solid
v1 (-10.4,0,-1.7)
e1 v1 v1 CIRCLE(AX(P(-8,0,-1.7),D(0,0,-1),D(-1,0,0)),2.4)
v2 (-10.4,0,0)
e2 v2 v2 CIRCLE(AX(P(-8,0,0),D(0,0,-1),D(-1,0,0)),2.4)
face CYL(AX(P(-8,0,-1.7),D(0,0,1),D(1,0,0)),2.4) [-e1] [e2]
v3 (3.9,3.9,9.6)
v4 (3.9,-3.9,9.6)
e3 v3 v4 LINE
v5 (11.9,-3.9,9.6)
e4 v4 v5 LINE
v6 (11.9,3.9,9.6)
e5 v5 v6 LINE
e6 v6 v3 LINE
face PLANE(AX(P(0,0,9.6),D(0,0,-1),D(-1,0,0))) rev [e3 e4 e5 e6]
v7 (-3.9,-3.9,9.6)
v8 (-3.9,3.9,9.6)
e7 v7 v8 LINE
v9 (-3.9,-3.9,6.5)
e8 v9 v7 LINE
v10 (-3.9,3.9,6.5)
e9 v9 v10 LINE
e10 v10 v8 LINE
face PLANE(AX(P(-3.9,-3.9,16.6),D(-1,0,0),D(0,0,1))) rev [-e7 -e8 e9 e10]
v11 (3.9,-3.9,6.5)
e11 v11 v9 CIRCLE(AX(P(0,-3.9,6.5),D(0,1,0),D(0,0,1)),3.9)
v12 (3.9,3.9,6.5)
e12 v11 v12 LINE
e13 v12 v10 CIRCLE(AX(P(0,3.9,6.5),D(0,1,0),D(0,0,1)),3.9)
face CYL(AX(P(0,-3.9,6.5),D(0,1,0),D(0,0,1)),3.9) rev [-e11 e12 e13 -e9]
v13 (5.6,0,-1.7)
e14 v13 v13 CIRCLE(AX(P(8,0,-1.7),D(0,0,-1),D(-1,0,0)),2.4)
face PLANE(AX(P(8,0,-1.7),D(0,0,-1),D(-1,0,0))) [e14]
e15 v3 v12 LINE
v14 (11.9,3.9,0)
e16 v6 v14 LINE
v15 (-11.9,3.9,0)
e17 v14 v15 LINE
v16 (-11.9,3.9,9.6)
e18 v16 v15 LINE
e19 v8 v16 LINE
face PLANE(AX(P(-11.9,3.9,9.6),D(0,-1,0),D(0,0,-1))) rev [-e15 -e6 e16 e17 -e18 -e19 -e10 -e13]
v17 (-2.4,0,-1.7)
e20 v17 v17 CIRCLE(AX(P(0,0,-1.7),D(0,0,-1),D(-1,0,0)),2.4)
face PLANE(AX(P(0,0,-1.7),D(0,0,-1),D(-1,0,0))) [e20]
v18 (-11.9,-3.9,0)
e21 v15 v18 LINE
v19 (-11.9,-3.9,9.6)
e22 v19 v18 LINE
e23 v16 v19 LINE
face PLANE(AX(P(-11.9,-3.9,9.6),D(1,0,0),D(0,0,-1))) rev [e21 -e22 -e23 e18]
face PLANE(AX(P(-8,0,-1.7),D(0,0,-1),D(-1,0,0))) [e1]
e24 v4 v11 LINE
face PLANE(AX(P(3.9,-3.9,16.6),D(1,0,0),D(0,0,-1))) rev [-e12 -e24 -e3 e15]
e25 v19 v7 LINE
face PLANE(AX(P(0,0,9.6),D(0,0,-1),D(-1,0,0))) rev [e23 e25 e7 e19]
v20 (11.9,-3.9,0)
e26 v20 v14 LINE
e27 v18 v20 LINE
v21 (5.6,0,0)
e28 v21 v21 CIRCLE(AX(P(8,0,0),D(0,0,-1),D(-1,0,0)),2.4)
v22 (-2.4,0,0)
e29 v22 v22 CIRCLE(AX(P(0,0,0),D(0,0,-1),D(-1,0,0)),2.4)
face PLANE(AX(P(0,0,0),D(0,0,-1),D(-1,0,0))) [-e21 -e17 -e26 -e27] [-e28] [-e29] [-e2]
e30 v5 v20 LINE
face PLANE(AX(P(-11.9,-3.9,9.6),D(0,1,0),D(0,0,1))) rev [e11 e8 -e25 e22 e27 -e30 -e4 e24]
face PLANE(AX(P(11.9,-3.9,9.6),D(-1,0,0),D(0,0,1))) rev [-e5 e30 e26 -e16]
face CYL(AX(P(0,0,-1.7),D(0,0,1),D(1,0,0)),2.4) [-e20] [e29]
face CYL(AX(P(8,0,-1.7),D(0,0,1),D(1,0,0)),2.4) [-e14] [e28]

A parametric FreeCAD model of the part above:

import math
import FreeCAD as App
import Part
import Sketcher
from FreeCAD import Vector

doc = App.newDocument("Part")
params = doc.addObject("Spreadsheet::Sheet", "Params")
for row, (alias, value) in enumerate([
    ("sketch1_width", "23.8 mm"),
    ("sketch1_height", "7.8 mm"),
    ("pad1_length", "9.6 mm"),
    ("sketch2_diameter", "4.8 mm"),
    ("pad2_length", "1.7 mm"),
    ("sketch3_radius", "3.9 mm"),
    ("sketch3_height", "10.1 mm"),
], start=1):
    params.set(f"A{row}", alias)
    params.set(f"B{row}", "=" + value)
    params.setAlias(f"B{row}", alias)

body = doc.addObject("PartDesign::Body", "Body")

# Sketch on XY plane
sketch1 = body.newObject("Sketcher::SketchObject", "Sketch")
sketch1.AttachmentSupport = (doc.getObject("XY_Plane"), [""])
sketch1.MapMode = "FlatFace"
sketch1.addGeometry([
    Part.LineSegment(Vector(-12, 4, 0), Vector(-12, -4, 0)),
    Part.LineSegment(Vector(-12, -4, 0), Vector(12, -4, 0)),
    Part.LineSegment(Vector(12, -4, 0), Vector(12, 4, 0)),
    Part.LineSegment(Vector(12, 4, 0), Vector(-12, 4, 0)),
], False)
sketch1.addConstraint([
    Sketcher.Constraint("Coincident", 0, 2, 1, 1),
    Sketcher.Constraint("Coincident", 1, 2, 2, 1),
    Sketcher.Constraint("Coincident", 2, 2, 3, 1),
    Sketcher.Constraint("Coincident", 3, 2, 0, 1),
    Sketcher.Constraint("Vertical", 0),
    Sketcher.Constraint("Horizontal", 1),
    Sketcher.Constraint("Vertical", 2),
    Sketcher.Constraint("Horizontal", 3),
    Sketcher.Constraint("Symmetric", 0, 2, 2, 2, -1, 1),
    Sketcher.Constraint("DistanceX", 1, 1, 1, 2, 23.8),
    Sketcher.Constraint("DistanceY", 0, 2, 0, 1, 7.8),
])
sketch1.setExpression("Constraints[9]", "Params.sketch1_width")
sketch1.setExpression("Constraints[10]", "Params.sketch1_height")
pad1 = body.newObject("PartDesign::Pad", "Pad")
pad1.Profile = sketch1
pad1.setExpression("Length", "Params.pad1_length")

# Sketch on XY plane
sketch2 = body.newObject("Sketcher::SketchObject", "Sketch001")
sketch2.AttachmentSupport = (doc.getObject("XY_Plane"), [""])
sketch2.MapMode = "FlatFace"
sketch2.addGeometry([
    Part.Circle(Vector(0, 0, 0), Vector(0, 0, 1), 2.4),
    Part.Circle(Vector(-8, 0, 0), Vector(0, 0, 1), 2.4),
    Part.Circle(Vector(8, 0, 0), Vector(0, 0, 1), 2.4),
], False)
sketch2.addConstraint([
    Sketcher.Constraint("Coincident", 0, 3, -1, 1),
    Sketcher.Constraint("Equal", 0, 1),
    Sketcher.Constraint("Equal", 1, 2),
    Sketcher.Constraint("Symmetric", 1, 3, 2, 3, -1, 1),
    Sketcher.Constraint("PointOnObject", 1, 3, -1),
    Sketcher.Constraint("Diameter", 0, 4.8),
    Sketcher.Constraint("DistanceX", 1, 3, -1, 1, 8.0),
])
sketch2.setExpression("Constraints[5]", "Params.sketch2_diameter")
pad2 = body.newObject("PartDesign::Pad", "Pad001")
pad2.Profile = sketch2
pad2.setExpression("Length", "Params.pad2_length")
pad2.Reversed = True

# Sketch on XZ plane
sketch3 = body.newObject("Sketcher::SketchObject", "Sketch002")
sketch3.AttachmentSupport = (doc.getObject("XZ_Plane"), [""])
sketch3.MapMode = "FlatFace"
sketch3.AttachmentOffset = App.Placement(Vector(0, 0, -3.9), App.Rotation())
sketch3.addGeometry([
    Part.LineSegment(Vector(-3.9, 16.6, 0), Vector(3.9, 16.6, 0)),
    Part.LineSegment(Vector(3.9, 16.6, 0), Vector(3.9, 6.5, 0)),
    Part.ArcOfCircle(Part.Circle(Vector(0, 6.5, 0), Vector(0, 0, 1), 3.9), math.radians(180), math.radians(360)),
    Part.LineSegment(Vector(-3.9, 6.5, 0), Vector(-3.9, 16.6, 0)),
], False)
sketch3.addConstraint([
    Sketcher.Constraint("Coincident", 0, 2, 1, 1),
    Sketcher.Constraint("Tangent", 1, 2, 2, 2),
    Sketcher.Constraint("Tangent", 2, 1, 3, 1),
    Sketcher.Constraint("Coincident", 3, 2, 0, 1),
    Sketcher.Constraint("Horizontal", 0),
    Sketcher.Constraint("Vertical", 1),
    Sketcher.Constraint("Vertical", 3),
    Sketcher.Constraint("PointOnObject", 2, 3, -2),
    Sketcher.Constraint("Radius", 2, 3.9),
    Sketcher.Constraint("DistanceY", 1, 2, 1, 1, 10.1),
    Sketcher.Constraint("DistanceY", -1, 1, 2, 3, 6.5),
])
sketch3.setExpression("Constraints[8]", "Params.sketch3_radius")
sketch3.setExpression("Constraints[9]", "Params.sketch3_height")
pocket1 = body.newObject("PartDesign::Pocket", "Pocket")
pocket1.Profile = sketch3
pocket1.Type = "ThroughAll"
pocket1.Reversed = True

doc.recompute()
